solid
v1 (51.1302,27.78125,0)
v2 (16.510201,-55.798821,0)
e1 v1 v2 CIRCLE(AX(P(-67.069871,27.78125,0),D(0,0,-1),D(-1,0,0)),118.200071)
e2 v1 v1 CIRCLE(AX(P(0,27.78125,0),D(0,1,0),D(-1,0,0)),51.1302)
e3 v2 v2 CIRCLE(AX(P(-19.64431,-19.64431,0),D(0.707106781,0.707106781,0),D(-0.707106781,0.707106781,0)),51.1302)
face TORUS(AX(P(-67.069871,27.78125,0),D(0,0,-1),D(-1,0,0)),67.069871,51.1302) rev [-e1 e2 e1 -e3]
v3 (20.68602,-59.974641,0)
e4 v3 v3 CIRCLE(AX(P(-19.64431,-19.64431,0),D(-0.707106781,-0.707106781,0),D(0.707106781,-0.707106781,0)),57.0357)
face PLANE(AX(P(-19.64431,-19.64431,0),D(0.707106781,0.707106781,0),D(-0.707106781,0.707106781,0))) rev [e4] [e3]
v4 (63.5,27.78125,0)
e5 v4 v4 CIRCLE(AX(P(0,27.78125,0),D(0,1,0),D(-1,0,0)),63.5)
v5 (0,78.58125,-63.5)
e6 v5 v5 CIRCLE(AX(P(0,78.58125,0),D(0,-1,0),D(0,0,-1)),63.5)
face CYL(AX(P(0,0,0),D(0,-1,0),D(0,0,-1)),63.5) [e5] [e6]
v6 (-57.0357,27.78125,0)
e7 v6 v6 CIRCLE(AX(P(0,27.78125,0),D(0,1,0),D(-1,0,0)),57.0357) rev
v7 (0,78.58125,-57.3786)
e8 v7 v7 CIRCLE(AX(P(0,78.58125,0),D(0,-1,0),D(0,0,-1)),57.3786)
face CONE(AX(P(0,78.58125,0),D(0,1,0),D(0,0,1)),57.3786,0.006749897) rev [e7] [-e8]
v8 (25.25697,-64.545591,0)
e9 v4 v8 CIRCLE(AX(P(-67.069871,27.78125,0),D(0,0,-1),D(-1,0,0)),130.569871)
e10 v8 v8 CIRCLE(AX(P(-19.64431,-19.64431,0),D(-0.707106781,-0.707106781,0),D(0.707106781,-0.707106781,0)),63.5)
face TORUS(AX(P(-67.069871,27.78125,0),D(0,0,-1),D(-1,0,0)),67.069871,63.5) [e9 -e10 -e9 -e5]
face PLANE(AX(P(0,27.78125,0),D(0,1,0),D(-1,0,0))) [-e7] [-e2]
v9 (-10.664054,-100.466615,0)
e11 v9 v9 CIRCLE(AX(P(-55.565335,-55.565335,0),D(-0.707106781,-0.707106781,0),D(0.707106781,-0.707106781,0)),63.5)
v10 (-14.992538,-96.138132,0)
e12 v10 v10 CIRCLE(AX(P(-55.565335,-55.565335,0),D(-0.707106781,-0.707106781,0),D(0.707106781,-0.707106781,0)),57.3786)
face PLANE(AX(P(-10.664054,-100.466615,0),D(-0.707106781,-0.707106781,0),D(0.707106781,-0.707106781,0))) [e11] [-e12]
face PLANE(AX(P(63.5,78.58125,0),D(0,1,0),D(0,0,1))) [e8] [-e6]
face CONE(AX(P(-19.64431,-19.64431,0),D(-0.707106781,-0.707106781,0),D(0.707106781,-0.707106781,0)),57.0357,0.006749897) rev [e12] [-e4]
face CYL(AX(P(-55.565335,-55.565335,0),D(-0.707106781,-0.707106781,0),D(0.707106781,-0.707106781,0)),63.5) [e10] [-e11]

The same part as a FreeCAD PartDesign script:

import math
import FreeCAD as App
import Part
import Sketcher
from FreeCAD import Vector
Q = App.Units.Quantity


def add_polygon(sketch, points):
    """Adds a closed chain of lines whose ends are joined by coincident constraints."""
    first, n = sketch.GeometryCount, len(points)
    for a, b in zip(points, points[1:] + points[:1]):
        sketch.addGeometry(Part.LineSegment(App.Vector(*a, 0), App.Vector(*b, 0)), False)
    for i in range(n):
        sketch.addConstraint(Sketcher.Constraint("Coincident", first + i, 2, first + (i + 1) % n, 1))

doc = App.newDocument("Part")
body = doc.addObject("PartDesign::Body", "Body")

sketch1 = body.newObject("Sketcher::SketchObject", "Sketch")
sketch1.AttachmentSupport = (doc.getObject("XY_Plane"), [""])
sketch1.MapMode = "FlatFace"
add_polygon(sketch1, [(-11, -100), (25, -65), (21, -60), (-15, -96)])
sketch1.addGeometry(Part.LineSegment(Vector(-56, -56, 0), Vector(-20, -20, 0)), True)
sketch1.addConstraint([
    Sketcher.Constraint("Perpendicular", 0, 1),
    Sketcher.Constraint("Parallel", 1, 3),
    Sketcher.Constraint("Perpendicular", 3, 4),
    Sketcher.Constraint("Equal", 0, 4),
    Sketcher.Constraint("Distance", 0, Q("2 in")),
    Sketcher.Constraint("Angle", 0, Q("45 deg")),
    Sketcher.Constraint("Distance", 3, Q("0.241 in")),
    Sketcher.Constraint("Distance", 1, Q("0.2545 in")),
    Sketcher.Constraint("DistanceX", -1, 1, 0, 2, Q("25.25697 mm")),
    Sketcher.Constraint("DistanceY", 0, 2, -1, 1, Q("64.545591 mm")),
    Sketcher.Constraint("DistanceX", 4, 2, -1, 1, Q("19.64431 mm")),
    Sketcher.Constraint("DistanceY", 4, 2, -1, 1, Q("19.64431 mm")),
])
revolution = body.newObject("PartDesign::Revolution", "Revolution")
revolution.Profile = sketch1
revolution.ReferenceAxis = (sketch1, ["Axis0"])
revolution.Angle = 360
body2 = doc.addObject("PartDesign::Body", "Body001")

sketch2 = body2.newObject("Sketcher::SketchObject", "Sketch001")
sketch2.AttachmentSupport = (doc.getObject("XY_Plane001"), [""])
sketch2.MapMode = "FlatFace"
add_polygon(sketch2, [(57, 79), (57, 28), (64, 28), (64, 79)])
sketch2.addConstraint([
    Sketcher.Constraint("Horizontal", 1),
    Sketcher.Constraint("Vertical", 2),
    Sketcher.Constraint("Horizontal", 3),
    Sketcher.Constraint("DistanceY", 2, 1, 2, 2, Q("2 in")),
    Sketcher.Constraint("DistanceX", -1, 1, 1, 2, Q("2.5 in")),
    Sketcher.Constraint("DistanceX", 3, 2, 3, 1, Q("0.241 in")),
    Sketcher.Constraint("DistanceX", 1, 1, 1, 2, Q("0.2545 in")),
    Sketcher.Constraint("DistanceY", -1, 1, 0, 2, Q("1.09375 in")),
])
revolution2 = body2.newObject("PartDesign::Revolution", "Revolution001")
revolution2.Profile = sketch2
revolution2.ReferenceAxis = (sketch2, ["V_Axis"])
revolution2.Angle = 360
body.AllowCompound = True
doc.recompute()

boolean = body.newObject("PartDesign::Boolean", "Boolean")
boolean.Type = "Fuse"
boolean.addObjects([body2])

sketch3 = body.newObject("Sketcher::SketchObject", "Sketch002")
sketch3.Placement = App.Placement(Vector(-19.64431, -19.64431, 0), App.Rotation(Vector(0, 0, -1), Vector(-0.707106781, 0.707106781, 0), Vector(0.707106781, 0.707106781, 0), "ZXY"))
sketch3.addGeometry([
    Part.Circle(Vector(0, 0, 0), Vector(0, 0, 1), 64),
    Part.Circle(Vector(0, 0, 0), Vector(0, 0, 1), 51),
], False)
sketch3.addConstraint([
    Sketcher.Constraint("Coincident", 0, 3, -1, 1),
    Sketcher.Constraint("Coincident", 1, 3, -1, 1),
    Sketcher.Constraint("Diameter", 0, Q("5 in")),
    Sketcher.Constraint("Diameter", 1, Q("4.026 in")),
])

sketch4 = body.newObject("Sketcher::SketchObject", "Sketch003")
sketch4.AttachmentSupport = (doc.getObject("XY_Plane"), [""])
sketch4.MapMode = "FlatFace"
sketch4.addGeometry(Part.ArcOfCircle(Part.Circle(Vector(-67, 28, 0), Vector(0, 0, 1), 67), math.radians(-45), math.radians(0)), False)
sketch4.addConstraint([
    Sketcher.Constraint("PointOnObject", 0, 2, -2),
    Sketcher.Constraint("DistanceY", -1, 1, 0, 3, Q("1.09375 in")),
    Sketcher.Constraint("DistanceY", -1, 1, 0, 2, Q("1.09375 in")),
    Sketcher.Constraint("Radius", 0, Q("67.069871 mm")),
    Sketcher.Constraint("DistanceX", 0, 1, -1, 1, Q("19.64431 mm")),
])
doc.recompute()

additivepipe = body.newObject("PartDesign::AdditivePipe", "AdditivePipe")
additivepipe.Profile = sketch3
additivepipe.Spine = (sketch4, ["Edge1"])

doc.recompute()
